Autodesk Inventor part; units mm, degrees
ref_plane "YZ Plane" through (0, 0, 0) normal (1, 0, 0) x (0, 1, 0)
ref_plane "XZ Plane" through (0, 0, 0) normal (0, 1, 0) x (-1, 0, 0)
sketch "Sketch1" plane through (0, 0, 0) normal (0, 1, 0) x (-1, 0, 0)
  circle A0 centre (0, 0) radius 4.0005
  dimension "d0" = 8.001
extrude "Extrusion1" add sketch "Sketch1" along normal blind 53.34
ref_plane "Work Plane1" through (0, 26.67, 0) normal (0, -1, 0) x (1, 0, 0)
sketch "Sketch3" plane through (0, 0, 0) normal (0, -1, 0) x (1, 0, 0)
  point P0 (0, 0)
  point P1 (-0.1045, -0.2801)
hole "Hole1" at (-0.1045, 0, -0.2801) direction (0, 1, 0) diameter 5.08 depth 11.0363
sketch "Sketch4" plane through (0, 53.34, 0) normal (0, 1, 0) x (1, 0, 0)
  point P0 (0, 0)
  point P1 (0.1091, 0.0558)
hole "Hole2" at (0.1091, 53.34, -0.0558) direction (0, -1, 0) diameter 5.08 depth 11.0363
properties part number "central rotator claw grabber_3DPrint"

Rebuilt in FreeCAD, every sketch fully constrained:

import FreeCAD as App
import Part
import Sketcher
Q = App.Units.Quantity

doc = App.newDocument("Part")
params = doc.addObject("Spreadsheet::Sheet", "Params")
for row, (alias, value) in enumerate([
    ("sketch1_diameter", "0.315 in"),
    ("pad1_length", "2.1 in"),
    ("sketch2_diameter", "0.2 in"),
    ("hole_diameter", "0.2 in"),
    ("hole_depth", "0.4345 in"),
    ("sketch3_diameter", "0.2 in"),
    ("hole2_diameter", "0.2 in"),
    ("hole2_depth", "0.4345 in"),
], start=1):
    params.set(f"A{row}", alias)
    params.set(f"B{row}", "=" + value)
    params.setAlias(f"B{row}", alias)

body = doc.addObject("PartDesign::Body", "Body")

# Sketch on XZ plane
sketch1 = body.newObject("Sketcher::SketchObject", "Sketch")
sketch1.AttachmentSupport = (doc.getObject("XZ_Plane"), [""])
sketch1.MapMode = "FlatFace"
sketch1.addGeometry(Part.Circle(App.Vector(0, 0, 0), App.Vector(0, 0, 1), 4.0005), False)
sketch1.addConstraint([
    Sketcher.Constraint("Coincident", 0, 3, -1, 1),
    Sketcher.Constraint("Diameter", 0, Q("0.315 in")),
])
sketch1.setExpression("Constraints[1]", "Params.sketch1_diameter")
pad1 = body.newObject("PartDesign::Pad", "Pad")
pad1.Profile = sketch1
pad1.setExpression("Length", "Params.pad1_length")
pad1.Reversed = True

# Sketch on XZ plane
sketch2 = body.newObject("Sketcher::SketchObject", "Sketch001")
sketch2.AttachmentSupport = (doc.getObject("XZ_Plane"), [""])
sketch2.MapMode = "FlatFace"
sketch2.addGeometry(Part.Circle(App.Vector(-0.1045, -0.2801, 0), App.Vector(0, 0, 1), 2.54), False)
sketch2.addConstraint([
    Sketcher.Constraint("Diameter", 0, Q("0.2 in")),
    Sketcher.Constraint("DistanceX", 0, 3, -1, 1, Q("0.1045 mm")),
    Sketcher.Constraint("DistanceY", 0, 3, -1, 1, Q("0.28 mm")),
])
sketch2.setExpression("Constraints[0]", "Params.sketch2_diameter")
doc.recompute()
hole = body.newObject("PartDesign::Hole", "Hole")
hole.Profile = sketch2
hole.ThreadType = "None"
hole.setExpression("Diameter", "Params.hole_diameter")
hole.DepthType = "Dimension"
hole.setExpression("Depth", "Params.hole_depth")
hole.DrillPoint = "Flat"

# Sketch on XZ plane
sketch3 = body.newObject("Sketcher::SketchObject", "Sketch002")
sketch3.AttachmentSupport = (doc.getObject("XZ_Plane"), [""])
sketch3.MapMode = "FlatFace"
sketch3.AttachmentOffset = App.Placement(App.Vector(0, 0, -2.1 * 25.4), App.Rotation())
sketch3.addGeometry(Part.Circle(App.Vector(0.1091, -0.0558, 0), App.Vector(0, 0, 1), 2.54), False)
sketch3.addConstraint([
    Sketcher.Constraint("Diameter", 0, Q("0.2 in")),
    Sketcher.Constraint("DistanceX", -1, 1, 0, 3, Q("0.0043 in")),
    Sketcher.Constraint("DistanceY", 0, 3, -1, 1, Q("0.0022 in")),
])
sketch3.setExpression("Constraints[0]", "Params.sketch3_diameter")
doc.recompute()
hole2 = body.newObject("PartDesign::Hole", "Hole001")
hole2.Profile = sketch3
hole2.ThreadType = "None"
hole2.setExpression("Diameter", "Params.hole2_diameter")
hole2.DepthType = "Dimension"
hole2.setExpression("Depth", "Params.hole2_depth")
hole2.DrillPoint = "Flat"
hole2.Reversed = True

doc.recompute()
